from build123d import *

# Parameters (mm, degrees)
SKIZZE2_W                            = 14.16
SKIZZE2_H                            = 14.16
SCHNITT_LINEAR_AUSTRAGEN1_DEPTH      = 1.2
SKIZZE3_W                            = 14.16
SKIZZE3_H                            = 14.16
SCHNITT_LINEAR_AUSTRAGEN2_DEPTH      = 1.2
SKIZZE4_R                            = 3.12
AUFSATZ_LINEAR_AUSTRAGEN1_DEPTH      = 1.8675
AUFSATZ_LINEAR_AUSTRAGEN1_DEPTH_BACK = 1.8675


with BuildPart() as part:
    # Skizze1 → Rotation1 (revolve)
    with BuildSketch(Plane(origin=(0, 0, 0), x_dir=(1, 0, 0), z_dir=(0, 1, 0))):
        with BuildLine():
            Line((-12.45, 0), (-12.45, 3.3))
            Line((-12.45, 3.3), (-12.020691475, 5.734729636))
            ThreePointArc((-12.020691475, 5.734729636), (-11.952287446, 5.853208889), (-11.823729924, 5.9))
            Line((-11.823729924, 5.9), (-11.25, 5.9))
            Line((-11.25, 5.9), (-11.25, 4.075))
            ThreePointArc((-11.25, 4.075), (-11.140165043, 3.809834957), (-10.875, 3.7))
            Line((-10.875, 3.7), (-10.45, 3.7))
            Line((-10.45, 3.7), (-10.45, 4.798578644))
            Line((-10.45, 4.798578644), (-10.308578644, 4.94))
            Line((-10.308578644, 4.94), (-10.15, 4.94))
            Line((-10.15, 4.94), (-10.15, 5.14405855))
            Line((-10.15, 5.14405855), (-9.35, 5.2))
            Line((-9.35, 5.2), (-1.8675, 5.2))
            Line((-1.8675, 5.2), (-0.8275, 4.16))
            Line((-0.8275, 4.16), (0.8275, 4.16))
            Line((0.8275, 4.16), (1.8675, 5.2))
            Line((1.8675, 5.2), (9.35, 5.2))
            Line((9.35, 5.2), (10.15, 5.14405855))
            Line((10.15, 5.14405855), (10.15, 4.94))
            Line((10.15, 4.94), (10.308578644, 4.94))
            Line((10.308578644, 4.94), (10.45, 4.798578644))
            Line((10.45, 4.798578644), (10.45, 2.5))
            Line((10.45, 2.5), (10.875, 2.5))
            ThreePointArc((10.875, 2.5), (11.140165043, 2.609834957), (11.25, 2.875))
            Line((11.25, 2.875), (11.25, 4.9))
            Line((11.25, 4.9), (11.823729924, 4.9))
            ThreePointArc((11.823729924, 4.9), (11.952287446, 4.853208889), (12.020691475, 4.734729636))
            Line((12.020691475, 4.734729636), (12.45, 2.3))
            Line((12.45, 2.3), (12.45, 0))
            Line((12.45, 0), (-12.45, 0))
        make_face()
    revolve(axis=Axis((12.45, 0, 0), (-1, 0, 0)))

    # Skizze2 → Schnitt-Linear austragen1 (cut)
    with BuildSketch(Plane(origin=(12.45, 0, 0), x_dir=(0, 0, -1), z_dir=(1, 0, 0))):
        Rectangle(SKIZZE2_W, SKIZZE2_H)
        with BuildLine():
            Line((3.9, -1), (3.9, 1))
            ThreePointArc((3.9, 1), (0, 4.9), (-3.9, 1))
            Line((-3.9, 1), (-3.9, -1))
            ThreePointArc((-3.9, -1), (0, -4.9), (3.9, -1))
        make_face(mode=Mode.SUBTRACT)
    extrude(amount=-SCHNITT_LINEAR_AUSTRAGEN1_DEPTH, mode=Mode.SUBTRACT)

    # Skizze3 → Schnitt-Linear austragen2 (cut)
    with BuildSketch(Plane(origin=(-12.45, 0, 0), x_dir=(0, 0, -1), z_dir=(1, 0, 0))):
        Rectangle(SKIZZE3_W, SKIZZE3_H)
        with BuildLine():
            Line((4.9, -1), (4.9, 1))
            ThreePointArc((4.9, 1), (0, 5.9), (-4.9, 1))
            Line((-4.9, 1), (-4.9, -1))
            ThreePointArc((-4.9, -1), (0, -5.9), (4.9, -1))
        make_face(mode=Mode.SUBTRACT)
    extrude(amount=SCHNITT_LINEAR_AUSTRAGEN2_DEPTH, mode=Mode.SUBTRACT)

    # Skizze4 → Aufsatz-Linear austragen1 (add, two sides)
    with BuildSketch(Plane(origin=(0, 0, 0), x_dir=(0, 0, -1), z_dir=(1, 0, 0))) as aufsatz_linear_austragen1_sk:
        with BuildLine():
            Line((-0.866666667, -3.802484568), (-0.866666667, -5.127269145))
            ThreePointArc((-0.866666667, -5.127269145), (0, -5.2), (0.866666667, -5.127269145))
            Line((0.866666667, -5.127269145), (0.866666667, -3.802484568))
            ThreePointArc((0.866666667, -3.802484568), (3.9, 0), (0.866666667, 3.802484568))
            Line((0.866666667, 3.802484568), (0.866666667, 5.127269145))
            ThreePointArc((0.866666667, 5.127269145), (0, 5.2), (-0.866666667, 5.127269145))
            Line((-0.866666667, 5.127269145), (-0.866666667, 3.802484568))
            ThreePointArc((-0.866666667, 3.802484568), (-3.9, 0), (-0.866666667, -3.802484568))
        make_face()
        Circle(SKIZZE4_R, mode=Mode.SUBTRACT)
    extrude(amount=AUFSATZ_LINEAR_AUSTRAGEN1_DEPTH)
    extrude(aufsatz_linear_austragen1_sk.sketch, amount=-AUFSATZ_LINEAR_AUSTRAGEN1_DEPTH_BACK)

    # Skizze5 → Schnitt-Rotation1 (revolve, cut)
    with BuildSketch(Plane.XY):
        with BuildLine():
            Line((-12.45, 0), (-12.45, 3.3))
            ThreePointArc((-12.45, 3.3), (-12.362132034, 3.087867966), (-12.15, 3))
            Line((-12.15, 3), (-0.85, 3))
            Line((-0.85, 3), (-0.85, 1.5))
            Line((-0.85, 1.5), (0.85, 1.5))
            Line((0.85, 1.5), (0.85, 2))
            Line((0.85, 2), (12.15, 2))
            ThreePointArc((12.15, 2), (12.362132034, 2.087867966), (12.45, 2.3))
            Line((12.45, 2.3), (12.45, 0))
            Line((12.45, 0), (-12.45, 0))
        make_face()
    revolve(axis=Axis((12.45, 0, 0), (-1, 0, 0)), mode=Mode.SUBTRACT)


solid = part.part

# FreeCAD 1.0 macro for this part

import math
import FreeCAD as App
import Part
import Sketcher
Q = App.Units.Quantity

doc = App.newDocument("Part")
body = doc.addObject("PartDesign::Body", "Body")

sketch1 = body.newObject("Sketcher::SketchObject", "Sketch")
sketch1.AttachmentSupport = (doc.getObject("XZ_Plane"), [""])
sketch1.MapMode = "FlatFace"
sketch1.addGeometry([
    Part.LineSegment(App.Vector(-12.45, -3.3, 0), App.Vector(-12.45, 0, 0)),
    Part.LineSegment(App.Vector(-12.45, 0, 0), App.Vector(12.45, 0, 0)),
    Part.LineSegment(App.Vector(12.45, 0, 0), App.Vector(12.45, -2.3, 0)),
    Part.LineSegment(App.Vector(12.45, -2.3, 0), App.Vector(12.02, -4.73, 0)),
    Part.ArcOfCircle(Part.Circle(App.Vector(11.82, -4.7, 0), App.Vector(0, 0, 1), 0.2), math.radians(-90), math.radians(-10)),
    Part.LineSegment(App.Vector(11.82, -4.9, 0), App.Vector(11.25, -4.9, 0)),
    Part.LineSegment(App.Vector(11.25, -4.9, 0), App.Vector(11.25, -2.88, 0)),
    Part.ArcOfCircle(Part.Circle(App.Vector(10.88, -2.88, 0), App.Vector(0, 0, 1), 0.38), math.radians(0), math.radians(90)),
    Part.LineSegment(App.Vector(10.88, -2.5, 0), App.Vector(10.45, -2.5, 0)),
    Part.LineSegment(App.Vector(10.45, -2.5, 0), App.Vector(10.45, -4.8, 0)),
    Part.LineSegment(App.Vector(10.45, -4.8, 0), App.Vector(10.31, -4.94, 0)),
    Part.LineSegment(App.Vector(10.31, -4.94, 0), App.Vector(10.15, -4.94, 0)),
    Part.LineSegment(App.Vector(10.15, -4.94, 0), App.Vector(10.15, -5.14, 0)),
    Part.LineSegment(App.Vector(10.15, -5.14, 0), App.Vector(9.35, -5.2, 0)),
    Part.LineSegment(App.Vector(9.35, -5.2, 0), App.Vector(1.87, -5.2, 0)),
    Part.LineSegment(App.Vector(1.87, -5.2, 0), App.Vector(0.83, -4.16, 0)),
    Part.LineSegment(App.Vector(0.83, -4.16, 0), App.Vector(-0.83, -4.16, 0)),
    Part.LineSegment(App.Vector(-0.83, -4.16, 0), App.Vector(-1.87, -5.2, 0)),
    Part.LineSegment(App.Vector(-1.87, -5.2, 0), App.Vector(-9.35, -5.2, 0)),
    Part.LineSegment(App.Vector(-9.35, -5.2, 0), App.Vector(-10.15, -5.14, 0)),
    Part.LineSegment(App.Vector(-10.15, -5.14, 0), App.Vector(-10.15, -4.94, 0)),
    Part.LineSegment(App.Vector(-10.15, -4.94, 0), App.Vector(-10.31, -4.94, 0)),
    Part.LineSegment(App.Vector(-10.31, -4.94, 0), App.Vector(-10.45, -4.8, 0)),
    Part.LineSegment(App.Vector(-10.45, -4.8, 0), App.Vector(-10.45, -3.7, 0)),
    Part.LineSegment(App.Vector(-10.45, -3.7, 0), App.Vector(-10.88, -3.7, 0)),
    Part.ArcOfCircle(Part.Circle(App.Vector(-10.88, -4.08, 0), App.Vector(0, 0, 1), 0.38), math.radians(90), math.radians(180)),
    Part.LineSegment(App.Vector(-11.25, -4.08, 0), App.Vector(-11.25, -5.9, 0)),
    Part.LineSegment(App.Vector(-11.25, -5.9, 0), App.Vector(-11.82, -5.9, 0)),
    Part.ArcOfCircle(Part.Circle(App.Vector(-11.82, -5.7, 0), App.Vector(0, 0, 1), 0.2), math.radians(-170), math.radians(-90)),
    Part.LineSegment(App.Vector(-12.02, -5.73, 0), App.Vector(-12.45, -3.3, 0)),
], False)
sketch1.addConstraint([
    Sketcher.Constraint("Coincident", 0, 2, 1, 1),
    Sketcher.Constraint("Coincident", 1, 2, 2, 1),
    Sketcher.Constraint("Coincident", 2, 2, 3, 1),
    Sketcher.Constraint("Tangent", 3, 2, 4, 2),
    Sketcher.Constraint("Tangent", 4, 1, 5, 1),
    Sketcher.Constraint("Coincident", 5, 2, 6, 1),
    Sketcher.Constraint("Tangent", 6, 2, 7, 1),
    Sketcher.Constraint("Tangent", 7, 2, 8, 1),
    Sketcher.Constraint("Coincident", 8, 2, 9, 1),
    Sketcher.Constraint("Coincident", 9, 2, 10, 1),
    Sketcher.Constraint("Coincident", 10, 2, 11, 1),
    Sketcher.Constraint("Coincident", 11, 2, 12, 1),
    Sketcher.Constraint("Coincident", 12, 2, 13, 1),
    Sketcher.Constraint("Coincident", 13, 2, 14, 1),
    Sketcher.Constraint("Coincident", 14, 2, 15, 1),
    Sketcher.Constraint("Coincident", 15, 2, 16, 1),
    Sketcher.Constraint("Coincident", 16, 2, 17, 1),
    Sketcher.Constraint("Coincident", 17, 2, 18, 1),
    Sketcher.Constraint("Coincident", 18, 2, 19, 1),
    Sketcher.Constraint("Coincident", 19, 2, 20, 1),
    Sketcher.Constraint("Coincident", 20, 2, 21, 1),
    Sketcher.Constraint("Coincident", 21, 2, 22, 1),
    Sketcher.Constraint("Coincident", 22, 2, 23, 1),
    Sketcher.Constraint("Coincident", 23, 2, 24, 1),
    Sketcher.Constraint("Tangent", 24, 2, 25, 1),
    Sketcher.Constraint("Tangent", 25, 2, 26, 1),
    Sketcher.Constraint("Coincident", 26, 2, 27, 1),
    Sketcher.Constraint("Tangent", 27, 2, 28, 2),
    Sketcher.Constraint("Tangent", 28, 1, 29, 1),
    Sketcher.Constraint("Coincident", 29, 2, 0, 1),
    Sketcher.Constraint("Vertical", 0),
    Sketcher.Constraint("Horizontal", 1),
    Sketcher.Constraint("Vertical", 2),
    Sketcher.Constraint("Horizontal", 5),
    Sketcher.Constraint("Vertical", 6),
    Sketcher.Constraint("Horizontal", 8),
    Sketcher.Constraint("Vertical", 9),
    Sketcher.Constraint("Horizontal", 11),
    Sketcher.Constraint("Vertical", 12),
    Sketcher.Constraint("Horizontal", 14),
    Sketcher.Constraint("Horizontal", 16),
    Sketcher.Constraint("Horizontal", 18),
    Sketcher.Constraint("Vertical", 20),
    Sketcher.Constraint("Horizontal", 21),
    Sketcher.Constraint("Vertical", 23),
    Sketcher.Constraint("Horizontal", 24),
    Sketcher.Constraint("Vertical", 26),
    Sketcher.Constraint("Horizontal", 27),
    Sketcher.Constraint("Equal", 7, 25),
    Sketcher.Constraint("Equal", 4, 28),
    Sketcher.Constraint("Symmetric", 0, 2, 1, 2, -1, 1),
    Sketcher.Constraint("Symmetric", 14, 2, 17, 2, -2),
    Sketcher.Constraint("Symmetric", 12, 2, 19, 2, -2),
    Sketcher.Constraint("Symmetric", 10, 2, 21, 2, -2),
    Sketcher.Constraint("Symmetric", 9, 2, 22, 2, -2),
    Sketcher.Constraint("Perpendicular", 10, 15),
    Sketcher.Constraint("Perpendicular", 15, 17),
    Sketcher.Constraint("Perpendicular", 17, 22),
    Sketcher.Constraint("Equal", 14, 18),
    Sketcher.Constraint("Equal", 8, 24),
    Sketcher.Constraint("Equal", 5, 27),
    Sketcher.Constraint("Equal", 3, 29),
    Sketcher.Constraint("Radius", 4, 0.2),
    Sketcher.Constraint("Angle", 3, Q("-100 deg")),
    Sketcher.Constraint("Angle", 13, Q("-176 deg")),
    Sketcher.Constraint("DistanceX", 1, 1, 1, 2, 24.9),
    Sketcher.Constraint("DistanceY", 0, 1, 0, 2, 3.3),
    Sketcher.Constraint("DistanceY", 2, 2, 2, 1, 2.3),
    Sketcher.Constraint("Radius", 7, 0.375),
    Sketcher.Constraint("DistanceX", 8, 2, 2, 2, 2.0),
    Sketcher.Constraint("Distance", 10, 0.2),
    Sketcher.Constraint("DistanceY", 4, 3, -1, 1, 4.7),
    Sketcher.Constraint("DistanceY", 7, 2, -1, 1, 2.5),
    Sketcher.Constraint("DistanceY", 13, 2, -1, 1, 5.2),
    Sketcher.Constraint("DistanceY", 23, 2, -1, 1, 3.7),
    Sketcher.Constraint("DistanceX", 5, 2, 2, 2, 1.2),
    Sketcher.Constraint("DistanceX", 11, 2, 9, 2, 0.3),
    Sketcher.Constraint("DistanceX", 13, 2, 12, 2, 0.8),
    Sketcher.Constraint("DistanceX", 16, 2, 16, 1, 1.655),
    Sketcher.Constraint("DistanceY", 10, 2, -1, 1, 4.94),
    Sketcher.Constraint("DistanceY", 15, 2, -1, 1, 4.16),
])
revolution = body.newObject("PartDesign::Revolution", "Revolution")
revolution.Profile = sketch1
revolution.ReferenceAxis = (sketch1, ["H_Axis"])
revolution.Angle = 360

sketch2 = body.newObject("Sketcher::SketchObject", "Sketch001")
sketch2.AttachmentSupport = (doc.getObject("YZ_Plane"), [""])
sketch2.MapMode = "FlatFace"
sketch2.AttachmentOffset = App.Placement(App.Vector(0, 0, 12.45), App.Rotation())
sketch2.addGeometry([
    Part.LineSegment(App.Vector(7.1, 7.1, 0), App.Vector(-7.1, 7.1, 0)),
    Part.LineSegment(App.Vector(-7.1, 7.1, 0), App.Vector(-7.1, -7.1, 0)),
    Part.LineSegment(App.Vector(-7.1, -7.1, 0), App.Vector(7.1, -7.1, 0)),
    Part.LineSegment(App.Vector(7.1, -7.1, 0), App.Vector(7.1, 7.1, 0)),
    Part.LineSegment(App.Vector(1, -3.9, 0), App.Vector(-1, -3.9, 0)),
    Part.ArcOfCircle(Part.Circle(App.Vector(-1, 0, 0), App.Vector(0, 0, 1), 3.9), math.radians(90), math.radians(270)),
    Part.LineSegment(App.Vector(-1, 3.9, 0), App.Vector(1, 3.9, 0)),
    Part.ArcOfCircle(Part.Circle(App.Vector(1, 0, 0), App.Vector(0, 0, 1), 3.9), math.radians(-90), math.radians(90)),
], False)
sketch2.addConstraint([
    Sketcher.Constraint("Coincident", 0, 2, 1, 1),
    Sketcher.Constraint("Coincident", 1, 2, 2, 1),
    Sketcher.Constraint("Coincident", 2, 2, 3, 1),
    Sketcher.Constraint("Coincident", 3, 2, 0, 1),
    Sketcher.Constraint("Tangent", 4, 2, 5, 2),
    Sketcher.Constraint("Tangent", 5, 1, 6, 1),
    Sketcher.Constraint("Tangent", 6, 2, 7, 2),
    Sketcher.Constraint("Tangent", 7, 1, 4, 1),
    Sketcher.Constraint("Horizontal", 0),
    Sketcher.Constraint("Vertical", 1),
    Sketcher.Constraint("Horizontal", 2),
    Sketcher.Constraint("Vertical", 3),
    Sketcher.Constraint("Horizontal", 4),
    Sketcher.Constraint("Horizontal", 6),
    Sketcher.Constraint("Symmetric", 5, 3, 7, 3, -1, 1),
    Sketcher.Constraint("Symmetric", 0, 2, 2, 2, -1, 1),
    Sketcher.Constraint("Equal", 2, 1),
    Sketcher.Constraint("Radius", 5, 3.9),
    Sketcher.Constraint("DistanceX", 4, 2, 4, 1, 2.0),
    Sketcher.Constraint("DistanceX", 0, 2, 0, 1, 14.16),
])
pocket1 = body.newObject("PartDesign::Pocket", "Pocket")
pocket1.Profile = sketch2
pocket1.Length = 1.2

sketch3 = body.newObject("Sketcher::SketchObject", "Sketch002")
sketch3.AttachmentSupport = (doc.getObject("YZ_Plane"), [""])
sketch3.MapMode = "FlatFace"
sketch3.AttachmentOffset = App.Placement(App.Vector(0, 0, -12.45), App.Rotation())
sketch3.addGeometry([
    Part.LineSegment(App.Vector(7.1, 7.1, 0), App.Vector(-7.1, 7.1, 0)),
    Part.LineSegment(App.Vector(-7.1, 7.1, 0), App.Vector(-7.1, -7.1, 0)),
    Part.LineSegment(App.Vector(-7.1, -7.1, 0), App.Vector(7.1, -7.1, 0)),
    Part.LineSegment(App.Vector(7.1, -7.1, 0), App.Vector(7.1, 7.1, 0)),
    Part.LineSegment(App.Vector(1, -4.9, 0), App.Vector(-1, -4.9, 0)),
    Part.ArcOfCircle(Part.Circle(App.Vector(-1, 0, 0), App.Vector(0, 0, 1), 4.9), math.radians(90), math.radians(270)),
    Part.LineSegment(App.Vector(-1, 4.9, 0), App.Vector(1, 4.9, 0)),
    Part.ArcOfCircle(Part.Circle(App.Vector(1, 0, 0), App.Vector(0, 0, 1), 4.9), math.radians(-90), math.radians(90)),
], False)
sketch3.addConstraint([
    Sketcher.Constraint("Coincident", 0, 2, 1, 1),
    Sketcher.Constraint("Coincident", 1, 2, 2, 1),
    Sketcher.Constraint("Coincident", 2, 2, 3, 1),
    Sketcher.Constraint("Coincident", 3, 2, 0, 1),
    Sketcher.Constraint("Tangent", 4, 2, 5, 2),
    Sketcher.Constraint("Tangent", 5, 1, 6, 1),
    Sketcher.Constraint("Tangent", 6, 2, 7, 2),
    Sketcher.Constraint("Tangent", 7, 1, 4, 1),
    Sketcher.Constraint("Horizontal", 0),
    Sketcher.Constraint("Vertical", 1),
    Sketcher.Constraint("Horizontal", 2),
    Sketcher.Constraint("Vertical", 3),
    Sketcher.Constraint("Horizontal", 4),
    Sketcher.Constraint("Horizontal", 6),
    Sketcher.Constraint("Symmetric", 5, 3, 7, 3, -1, 1),
    Sketcher.Constraint("Symmetric", 0, 2, 2, 2, -1, 1),
    Sketcher.Constraint("Equal", 2, 1),
    Sketcher.Constraint("Radius", 5, 4.9),
    Sketcher.Constraint("DistanceX", 4, 2, 4, 1, 2.0),
    Sketcher.Constraint("DistanceX", 0, 2, 0, 1, 14.16),
])
pocket2 = body.newObject("PartDesign::Pocket", "Pocket001")
pocket2.Profile = sketch3
pocket2.Length = 1.2
pocket2.Reversed = True

sketch4 = body.newObject("Sketcher::SketchObject", "Sketch003")
sketch4.AttachmentSupport = (doc.getObject("YZ_Plane"), [""])
sketch4.MapMode = "FlatFace"
sketch4.addGeometry([
    Part.LineSegment(App.Vector(-3.8, 0.9, 0), App.Vector(-5.1, 0.9, 0)),
    Part.ArcOfCircle(Part.Circle(App.Vector(0, 0, 0), App.Vector(0, 0, 1), 5.2), math.radians(170.41), math.radians(189.59)),
    Part.LineSegment(App.Vector(-5.1, -0.9, 0), App.Vector(-3.8, -0.9, 0)),
    Part.ArcOfCircle(Part.Circle(App.Vector(0, 0, 0), App.Vector(0, 0, 1), 3.9), math.radians(-167), math.radians(-13)),
    Part.LineSegment(App.Vector(3.8, -0.9, 0), App.Vector(5.1, -0.9, 0)),
    Part.ArcOfCircle(Part.Circle(App.Vector(0, 0, 0), App.Vector(0, 0, 1), 5.2), math.radians(-9.59), math.radians(9.59)),
    Part.LineSegment(App.Vector(5.1, 0.9, 0), App.Vector(3.8, 0.9, 0)),
    Part.ArcOfCircle(Part.Circle(App.Vector(0, 0, 0), App.Vector(0, 0, 1), 3.9), math.radians(13), math.radians(167)),
    Part.Circle(App.Vector(0, 0, 0), App.Vector(0, 0, 1), 3.1),
], False)
sketch4.addConstraint([
    Sketcher.Constraint("Coincident", 0, 2, 1, 1),
    Sketcher.Constraint("Coincident", 1, 2, 2, 1),
    Sketcher.Constraint("Coincident", 2, 2, 3, 1),
    Sketcher.Constraint("Coincident", 3, 2, 4, 1),
    Sketcher.Constraint("Coincident", 4, 2, 5, 1),
    Sketcher.Constraint("Coincident", 5, 2, 6, 1),
    Sketcher.Constraint("Coincident", 6, 2, 7, 1),
    Sketcher.Constraint("Coincident", 7, 2, 0, 1),
    Sketcher.Constraint("Horizontal", 0),
    Sketcher.Constraint("Horizontal", 2),
    Sketcher.Constraint("Horizontal", 4),
    Sketcher.Constraint("Horizontal", 6),
    Sketcher.Constraint("Coincident", 1, 3, -1, 1),
    Sketcher.Constraint("Coincident", 3, 3, -1, 1),
    Sketcher.Constraint("Coincident", 5, 3, -1, 1),
    Sketcher.Constraint("Coincident", 7, 3, -1, 1),
    Sketcher.Constraint("Coincident", 8, 3, -1, 1),
    Sketcher.Constraint("Equal", 1, 5),
    Sketcher.Constraint("Equal", 3, 7),
    Sketcher.Constraint("Horizontal", 2, 2, 3, 2),
    Sketcher.Constraint("Horizontal", 0, 2, 5, 2),
    Sketcher.Constraint("Vertical", 0, 2, 1, 2),
    Sketcher.Constraint("Radius", 1, 5.2),
    Sketcher.Constraint("Radius", 3, 3.9),
    Sketcher.Constraint("Diameter", 8, 6.24),
    Sketcher.Constraint("DistanceX", 0, 2, 0, 1, 1.324785),
])
pad1 = body.newObject("PartDesign::Pad", "Pad")
pad1.Profile = sketch4
pad1.Type = "TwoLengths"
pad1.Length = 1.8675
pad1.Length2 = 1.8675

sketch5 = body.newObject("Sketcher::SketchObject", "Sketch004")
sketch5.AttachmentSupport = (doc.getObject("XY_Plane"), [""])
sketch5.MapMode = "FlatFace"
sketch5.addGeometry([
    Part.LineSegment(App.Vector(-12.45, 3.3, 0), App.Vector(-12.45, 0, 0)),
    Part.LineSegment(App.Vector(-12.45, 0, 0), App.Vector(12.45, 0, 0)),
    Part.LineSegment(App.Vector(12.45, 0, 0), App.Vector(12.45, 2.3, 0)),
    Part.ArcOfCircle(Part.Circle(App.Vector(12.15, 2.3, 0), App.Vector(0, 0, 1), 0.3), math.radians(-90), math.radians(0)),
    Part.LineSegment(App.Vector(12.15, 2, 0), App.Vector(0.85, 2, 0)),
    Part.LineSegment(App.Vector(0.85, 2, 0), App.Vector(0.85, 1.5, 0)),
    Part.LineSegment(App.Vector(0.85, 1.5, 0), App.Vector(-0.85, 1.5, 0)),
    Part.LineSegment(App.Vector(-0.85, 1.5, 0), App.Vector(-0.85, 3, 0)),
    Part.LineSegment(App.Vector(-0.85, 3, 0), App.Vector(-12.15, 3, 0)),
    Part.ArcOfCircle(Part.Circle(App.Vector(-12.15, 3.3, 0), App.Vector(0, 0, 1), 0.3), math.radians(-180), math.radians(-90)),
], False)
sketch5.addConstraint([
    Sketcher.Constraint("Coincident", 0, 2, 1, 1),
    Sketcher.Constraint("Coincident", 1, 2, 2, 1),
    Sketcher.Constraint("Tangent", 2, 2, 3, 2),
    Sketcher.Constraint("Tangent", 3, 1, 4, 1),
    Sketcher.Constraint("Coincident", 4, 2, 5, 1),
    Sketcher.Constraint("Coincident", 5, 2, 6, 1),
    Sketcher.Constraint("Coincident", 6, 2, 7, 1),
    Sketcher.Constraint("Coincident", 7, 2, 8, 1),
    Sketcher.Constraint("Tangent", 8, 2, 9, 2),
    Sketcher.Constraint("Tangent", 9, 1, 0, 1),
    Sketcher.Constraint("Vertical", 0),
    Sketcher.Constraint("Horizontal", 1),
    Sketcher.Constraint("Vertical", 2),
    Sketcher.Constraint("Horizontal", 4),
    Sketcher.Constraint("Vertical", 5),
    Sketcher.Constraint("Horizontal", 6),
    Sketcher.Constraint("Vertical", 7),
    Sketcher.Constraint("Horizontal", 8),
    Sketcher.Constraint("Equal", 3, 9),
    Sketcher.Constraint("Symmetric", 0, 2, 1, 2, -1, 1),
    Sketcher.Constraint("Equal", 4, 8),
    Sketcher.Constraint("Radius", 3, 0.3),
    Sketcher.Constraint("DistanceX", 1, 1, 1, 2, 24.9),
    Sketcher.Constraint("DistanceX", 4, 2, 4, 1, 11.3),
    Sketcher.Constraint("DistanceY", 0, 2, 0, 1, 3.3),
    Sketcher.Constraint("DistanceY", 2, 1, 2, 2, 2.3),
    Sketcher.Constraint("DistanceY", 5, 2, 5, 1, 0.5),
])
groove = body.newObject("PartDesign::Groove", "Groove")
groove.Profile = sketch5
groove.ReferenceAxis = (sketch5, ["H_Axis"])
groove.Angle = 360

doc.recompute()
